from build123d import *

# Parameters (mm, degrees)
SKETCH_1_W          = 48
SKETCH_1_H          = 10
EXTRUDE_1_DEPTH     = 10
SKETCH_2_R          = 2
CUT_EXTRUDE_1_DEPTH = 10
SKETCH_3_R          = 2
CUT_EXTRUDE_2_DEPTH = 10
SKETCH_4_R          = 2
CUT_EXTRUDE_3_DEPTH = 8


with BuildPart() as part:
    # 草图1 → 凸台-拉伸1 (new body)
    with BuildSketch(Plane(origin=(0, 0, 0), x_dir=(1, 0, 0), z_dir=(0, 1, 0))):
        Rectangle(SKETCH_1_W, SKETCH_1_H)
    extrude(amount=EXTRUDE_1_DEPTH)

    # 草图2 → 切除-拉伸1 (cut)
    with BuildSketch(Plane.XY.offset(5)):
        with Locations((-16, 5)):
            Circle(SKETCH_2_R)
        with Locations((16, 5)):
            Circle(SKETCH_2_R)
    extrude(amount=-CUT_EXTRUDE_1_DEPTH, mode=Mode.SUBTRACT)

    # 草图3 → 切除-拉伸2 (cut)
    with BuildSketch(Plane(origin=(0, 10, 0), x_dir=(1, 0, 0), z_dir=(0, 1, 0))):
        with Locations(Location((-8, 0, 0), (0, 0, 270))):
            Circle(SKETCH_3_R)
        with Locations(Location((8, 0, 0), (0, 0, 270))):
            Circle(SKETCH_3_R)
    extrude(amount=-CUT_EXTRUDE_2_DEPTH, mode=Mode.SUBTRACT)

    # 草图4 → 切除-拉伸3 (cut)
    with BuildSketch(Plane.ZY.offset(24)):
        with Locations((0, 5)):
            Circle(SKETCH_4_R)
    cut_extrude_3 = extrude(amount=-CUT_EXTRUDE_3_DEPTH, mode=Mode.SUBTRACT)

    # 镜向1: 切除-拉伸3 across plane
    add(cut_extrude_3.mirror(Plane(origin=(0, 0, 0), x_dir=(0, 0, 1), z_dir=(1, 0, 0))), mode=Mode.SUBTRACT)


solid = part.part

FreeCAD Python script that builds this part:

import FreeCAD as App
import Part
import Sketcher
Q = App.Units.Quantity

doc = App.newDocument("Part")
params = doc.addObject("Spreadsheet::Sheet", "Params")
for row, (alias, value) in enumerate([
    ("sketch1_width", "48 mm"),
    ("sketch1_height", "10 mm"),
    ("pad1_length", "10 mm"),
    ("sketch2_diameter", "4 mm"),
    ("pocket1_length", "10 mm"),
    ("sketch3_diameter", "4 mm"),
    ("pocket2_length", "10 mm"),
    ("sketch4_diameter", "4 mm"),
    ("pocket3_length", "8 mm"),
], start=1):
    params.set(f"A{row}", alias)
    params.set(f"B{row}", "=" + value)
    params.setAlias(f"B{row}", alias)

body = doc.addObject("PartDesign::Body", "Body")

# Sketch on XZ plane
sketch1 = body.newObject("Sketcher::SketchObject", "Sketch")
sketch1.AttachmentSupport = (doc.getObject("XZ_Plane"), [""])
sketch1.MapMode = "FlatFace"
sketch1.addGeometry([
    Part.LineSegment(App.Vector(-24, -5, 0), App.Vector(-24, 5, 0)),
    Part.LineSegment(App.Vector(-24, 5, 0), App.Vector(24, 5, 0)),
    Part.LineSegment(App.Vector(24, 5, 0), App.Vector(24, -5, 0)),
    Part.LineSegment(App.Vector(24, -5, 0), App.Vector(-24, -5, 0)),
], False)
sketch1.addConstraint([
    Sketcher.Constraint("Coincident", 0, 2, 1, 1),
    Sketcher.Constraint("Coincident", 1, 2, 2, 1),
    Sketcher.Constraint("Coincident", 2, 2, 3, 1),
    Sketcher.Constraint("Coincident", 3, 2, 0, 1),
    Sketcher.Constraint("Vertical", 0),
    Sketcher.Constraint("Horizontal", 1),
    Sketcher.Constraint("Vertical", 2),
    Sketcher.Constraint("Horizontal", 3),
    Sketcher.Constraint("Symmetric", 0, 2, 2, 2, -1, 1),
    Sketcher.Constraint("DistanceX", 1, 1, 1, 2, Q("48 mm")),
    Sketcher.Constraint("DistanceY", 0, 1, 0, 2, Q("10 mm")),
])
sketch1.setExpression("Constraints[9]", "Params.sketch1_width")
sketch1.setExpression("Constraints[10]", "Params.sketch1_height")
pad1 = body.newObject("PartDesign::Pad", "Pad")
pad1.Profile = sketch1
pad1.setExpression("Length", "Params.pad1_length")
pad1.Reversed = True

# Sketch on XY plane
sketch2 = body.newObject("Sketcher::SketchObject", "Sketch001")
sketch2.AttachmentSupport = (doc.getObject("XY_Plane"), [""])
sketch2.MapMode = "FlatFace"
sketch2.AttachmentOffset = App.Placement(App.Vector(0, 0, 5), App.Rotation())
sketch2.addGeometry([
    Part.Circle(App.Vector(-16, 5, 0), App.Vector(0, 0, 1), 2),
    Part.Circle(App.Vector(16, 5, 0), App.Vector(0, 0, 1), 2),
], False)
sketch2.addConstraint([
    Sketcher.Constraint("Equal", 0, 1),
    Sketcher.Constraint("Symmetric", 0, 3, 1, 3, -2),
    Sketcher.Constraint("Diameter", 0, Q("4 mm")),
    Sketcher.Constraint("DistanceX", 0, 3, -1, 1, Q("16 mm")),
    Sketcher.Constraint("DistanceY", -1, 1, 0, 3, Q("5 mm")),
])
sketch2.setExpression("Constraints[2]", "Params.sketch2_diameter")
pocket1 = body.newObject("PartDesign::Pocket", "Pocket")
pocket1.Profile = sketch2
pocket1.setExpression("Length", "Params.pocket1_length")

# Sketch on XZ plane
sketch3 = body.newObject("Sketcher::SketchObject", "Sketch002")
sketch3.AttachmentSupport = (doc.getObject("XZ_Plane"), [""])
sketch3.MapMode = "FlatFace"
sketch3.AttachmentOffset = App.Placement(App.Vector(0, 0, -10), App.Rotation())
sketch3.addGeometry([
    Part.Circle(App.Vector(-8, 0, 0), App.Vector(0, 0, 1), 2),
    Part.Circle(App.Vector(8, 0, 0), App.Vector(0, 0, 1), 2),
], False)
sketch3.addConstraint([
    Sketcher.Constraint("Equal", 0, 1),
    Sketcher.Constraint("Symmetric", 0, 3, 1, 3, -1, 1),
    Sketcher.Constraint("PointOnObject", 0, 3, -1),
    Sketcher.Constraint("Diameter", 0, Q("4 mm")),
    Sketcher.Constraint("DistanceX", 0, 3, -1, 1, Q("8 mm")),
])
sketch3.setExpression("Constraints[3]", "Params.sketch3_diameter")
pocket2 = body.newObject("PartDesign::Pocket", "Pocket001")
pocket2.Profile = sketch3
pocket2.setExpression("Length", "Params.pocket2_length")
pocket2.Reversed = True

# Sketch on YZ plane
sketch4 = body.newObject("Sketcher::SketchObject", "Sketch003")
sketch4.AttachmentSupport = (doc.getObject("YZ_Plane"), [""])
sketch4.MapMode = "FlatFace"
sketch4.AttachmentOffset = App.Placement(App.Vector(0, 0, -24), App.Rotation())
sketch4.addGeometry(Part.Circle(App.Vector(5, 0, 0), App.Vector(0, 0, 1), 2), False)
sketch4.addConstraint([
    Sketcher.Constraint("PointOnObject", 0, 3, -1),
    Sketcher.Constraint("Diameter", 0, Q("4 mm")),
    Sketcher.Constraint("DistanceX", -1, 1, 0, 3, Q("5 mm")),
])
sketch4.setExpression("Constraints[1]", "Params.sketch4_diameter")
pocket3 = body.newObject("PartDesign::Pocket", "Pocket002")
pocket3.Profile = sketch4
pocket3.setExpression("Length", "Params.pocket3_length")
pocket3.Reversed = True
doc.recompute()

mirrored = body.newObject("PartDesign::Mirrored", "Mirrored")
mirrored.Originals = [pocket3]
mirrored.MirrorPlane = (doc.getObject("YZ_Plane"), [""])
body.Tip = mirrored

doc.recompute()
